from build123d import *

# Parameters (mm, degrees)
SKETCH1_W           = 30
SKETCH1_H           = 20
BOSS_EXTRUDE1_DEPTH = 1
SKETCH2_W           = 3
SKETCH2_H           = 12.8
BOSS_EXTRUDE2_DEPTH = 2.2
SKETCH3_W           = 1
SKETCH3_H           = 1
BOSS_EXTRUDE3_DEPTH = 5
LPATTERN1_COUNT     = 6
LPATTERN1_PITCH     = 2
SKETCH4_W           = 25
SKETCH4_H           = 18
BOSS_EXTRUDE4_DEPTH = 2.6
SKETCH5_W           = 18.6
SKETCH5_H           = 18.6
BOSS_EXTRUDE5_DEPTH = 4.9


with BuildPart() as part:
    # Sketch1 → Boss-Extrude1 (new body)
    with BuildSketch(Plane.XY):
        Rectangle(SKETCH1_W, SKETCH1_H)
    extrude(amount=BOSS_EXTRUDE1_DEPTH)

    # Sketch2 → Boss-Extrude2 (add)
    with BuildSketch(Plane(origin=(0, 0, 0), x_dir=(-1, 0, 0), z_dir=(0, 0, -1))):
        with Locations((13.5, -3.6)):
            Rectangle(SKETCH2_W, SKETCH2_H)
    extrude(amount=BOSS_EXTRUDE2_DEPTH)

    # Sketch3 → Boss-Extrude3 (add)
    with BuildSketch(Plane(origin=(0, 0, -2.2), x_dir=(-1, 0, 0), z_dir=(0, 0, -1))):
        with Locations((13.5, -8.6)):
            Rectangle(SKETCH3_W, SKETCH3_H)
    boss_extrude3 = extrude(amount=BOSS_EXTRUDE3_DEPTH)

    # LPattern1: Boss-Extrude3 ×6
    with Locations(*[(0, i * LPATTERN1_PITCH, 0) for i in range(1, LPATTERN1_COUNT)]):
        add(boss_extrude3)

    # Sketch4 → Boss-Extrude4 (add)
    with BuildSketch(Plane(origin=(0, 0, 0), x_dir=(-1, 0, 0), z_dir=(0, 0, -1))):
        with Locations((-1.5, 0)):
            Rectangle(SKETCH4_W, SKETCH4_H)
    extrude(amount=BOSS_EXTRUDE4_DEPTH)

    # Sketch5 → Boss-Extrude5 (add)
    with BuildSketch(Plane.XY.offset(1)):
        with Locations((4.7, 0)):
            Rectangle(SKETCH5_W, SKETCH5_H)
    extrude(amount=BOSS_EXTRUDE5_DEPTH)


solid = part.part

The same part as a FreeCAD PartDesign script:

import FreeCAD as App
import Part
import Sketcher
from FreeCAD import Vector
Q = App.Units.Quantity


def add_polygon(sketch, points):
    """Adds a closed chain of lines whose ends are joined by coincident constraints."""
    first, n = sketch.GeometryCount, len(points)
    for a, b in zip(points, points[1:] + points[:1]):
        sketch.addGeometry(Part.LineSegment(App.Vector(*a, 0), App.Vector(*b, 0)), False)
    for i in range(n):
        sketch.addConstraint(Sketcher.Constraint("Coincident", first + i, 2, first + (i + 1) % n, 1))

doc = App.newDocument("Part")
params = doc.addObject("Spreadsheet::Sheet", "Params")
for row, (alias, value) in enumerate([
    ("sketch1_width", "30 mm"),
    ("sketch1_height", "20 mm"),
    ("pad1_length", "1 mm"),
    ("sketch2_width", "3 mm"),
    ("sketch2_height", "12.8 mm"),
    ("pad2_length", "2.2 mm"),
    ("sketch3_width", "1 mm"),
    ("pad3_length", "5 mm"),
    ("linearpattern_pitch", "2 mm"),
    ("sketch4_width", "25 mm"),
    ("sketch4_height", "18 mm"),
    ("pad4_length", "2.6 mm"),
    ("sketch5_width", "18.6 mm"),
    ("pad5_length", "4.9 mm"),
], start=1):
    params.set(f"A{row}", alias)
    params.set(f"B{row}", "=" + value)
    params.setAlias(f"B{row}", alias)

body = doc.addObject("PartDesign::Body", "Body")

# Sketch on XY plane
sketch1 = body.newObject("Sketcher::SketchObject", "Sketch")
sketch1.AttachmentSupport = (doc.getObject("XY_Plane"), [""])
sketch1.MapMode = "FlatFace"
add_polygon(sketch1, [(-15, 10), (-15, -10), (15, -10), (15, 10)])  # lines 0-3
sketch1.addConstraint([
    Sketcher.Constraint("Vertical", 0),
    Sketcher.Constraint("Horizontal", 1),
    Sketcher.Constraint("Vertical", 2),
    Sketcher.Constraint("Horizontal", 3),
    Sketcher.Constraint("Symmetric", 0, 2, 2, 2, -1, 1),
    Sketcher.Constraint("DistanceX", 1, 1, 1, 2, Q("30 mm")),
    Sketcher.Constraint("DistanceY", 0, 2, 0, 1, Q("20 mm")),
])
sketch1.setExpression("Constraints[9]", "Params.sketch1_width")
sketch1.setExpression("Constraints[10]", "Params.sketch1_height")
pad1 = body.newObject("PartDesign::Pad", "Pad")
pad1.Profile = sketch1
pad1.setExpression("Length", "Params.pad1_length")

# Sketch on XY plane
sketch2 = body.newObject("Sketcher::SketchObject", "Sketch001")
sketch2.AttachmentSupport = (doc.getObject("XY_Plane"), [""])
sketch2.MapMode = "FlatFace"
add_polygon(sketch2, [(-12, 2.8), (-12, -10), (-15, -10), (-15, 2.8)])  # lines 0-3
sketch2.addConstraint([
    Sketcher.Constraint("Vertical", 0),
    Sketcher.Constraint("Horizontal", 1),
    Sketcher.Constraint("Vertical", 2),
    Sketcher.Constraint("Horizontal", 3),
    Sketcher.Constraint("DistanceX", 1, 2, 1, 1, Q("3 mm")),
    Sketcher.Constraint("DistanceY", 0, 2, 0, 1, Q("12.8 mm")),
    Sketcher.Constraint("DistanceX", 0, 2, -1, 1, Q("12 mm")),
    Sketcher.Constraint("DistanceY", 0, 2, -1, 1, Q("10 mm")),
])
sketch2.setExpression("Constraints[8]", "Params.sketch2_width")
sketch2.setExpression("Constraints[9]", "Params.sketch2_height")
pad2 = body.newObject("PartDesign::Pad", "Pad001")
pad2.Profile = sketch2
pad2.setExpression("Length", "Params.pad2_length")
pad2.Reversed = True

# Sketch on XY plane
sketch3 = body.newObject("Sketcher::SketchObject", "Sketch002")
sketch3.AttachmentSupport = (doc.getObject("XY_Plane"), [""])
sketch3.MapMode = "FlatFace"
sketch3.AttachmentOffset = App.Placement(Vector(0, 0, -2.2), App.Rotation())
add_polygon(sketch3, [(-13, -8.1), (-13, -9.1), (-14, -9.1), (-14, -8.1)])  # lines 0-3
sketch3.addConstraint([
    Sketcher.Constraint("Vertical", 0),
    Sketcher.Constraint("Horizontal", 1),
    Sketcher.Constraint("Vertical", 2),
    Sketcher.Constraint("Horizontal", 3),
    Sketcher.Constraint("Equal", 3, 0),
    Sketcher.Constraint("DistanceX", 1, 2, 1, 1, Q("1 mm")),
    Sketcher.Constraint("DistanceX", 0, 2, -1, 1, Q("13 mm")),
    Sketcher.Constraint("DistanceY", 0, 2, -1, 1, Q("9.1 mm")),
])
sketch3.setExpression("Constraints[9]", "Params.sketch3_width")
pad3 = body.newObject("PartDesign::Pad", "Pad002")
pad3.Profile = sketch3
pad3.setExpression("Length", "Params.pad3_length")
pad3.Reversed = True
doc.recompute()

linearpattern = body.newObject("PartDesign::LinearPattern", "LinearPattern")
linearpattern.Originals = [pad3]
linearpattern.Direction = (doc.getObject("Y_Axis"), [""])
linearpattern.Mode = "offset"
linearpattern.setExpression("Offset", "Params.linearpattern_pitch")
linearpattern.Occurrences = 6
body.Tip = linearpattern

# Sketch on XY plane
sketch4 = body.newObject("Sketcher::SketchObject", "Sketch003")
sketch4.AttachmentSupport = (doc.getObject("XY_Plane"), [""])
sketch4.MapMode = "FlatFace"
add_polygon(sketch4, [(14, 9), (14, -9), (-11, -9), (-11, 9)])  # lines 0-3
sketch4.addConstraint([
    Sketcher.Constraint("Vertical", 0),
    Sketcher.Constraint("Horizontal", 1),
    Sketcher.Constraint("Vertical", 2),
    Sketcher.Constraint("Horizontal", 3),
    Sketcher.Constraint("DistanceX", 1, 2, 1, 1, Q("25 mm")),
    Sketcher.Constraint("DistanceY", 0, 2, 0, 1, Q("18 mm")),
    Sketcher.Constraint("DistanceX", -1, 1, 0, 2, Q("14 mm")),
    Sketcher.Constraint("DistanceY", 0, 2, -1, 1, Q("9 mm")),
])
sketch4.setExpression("Constraints[8]", "Params.sketch4_width")
sketch4.setExpression("Constraints[9]", "Params.sketch4_height")
pad4 = body.newObject("PartDesign::Pad", "Pad003")
pad4.Profile = sketch4
pad4.setExpression("Length", "Params.pad4_length")
pad4.Reversed = True

# Sketch on XY plane
sketch5 = body.newObject("Sketcher::SketchObject", "Sketch004")
sketch5.AttachmentSupport = (doc.getObject("XY_Plane"), [""])
sketch5.MapMode = "FlatFace"
sketch5.AttachmentOffset = App.Placement(Vector(0, 0, 1), App.Rotation())
add_polygon(sketch5, [(-4.6, 9.3), (-4.6, -9.3), (14, -9.3), (14, 9.3)])  # lines 0-3
sketch5.addConstraint([
    Sketcher.Constraint("Vertical", 0),
    Sketcher.Constraint("Horizontal", 1),
    Sketcher.Constraint("Vertical", 2),
    Sketcher.Constraint("Horizontal", 3),
    Sketcher.Constraint("Equal", 3, 0),
    Sketcher.Constraint("DistanceX", 1, 1, 1, 2, Q("18.6 mm")),
    Sketcher.Constraint("DistanceX", -1, 1, 1, 2, Q("14 mm")),
    Sketcher.Constraint("DistanceY", 0, 2, -1, 1, Q("9.3 mm")),
])
sketch5.setExpression("Constraints[9]", "Params.sketch5_width")
pad5 = body.newObject("PartDesign::Pad", "Pad004")
pad5.Profile = sketch5
pad5.setExpression("Length", "Params.pad5_length")

doc.recompute()
